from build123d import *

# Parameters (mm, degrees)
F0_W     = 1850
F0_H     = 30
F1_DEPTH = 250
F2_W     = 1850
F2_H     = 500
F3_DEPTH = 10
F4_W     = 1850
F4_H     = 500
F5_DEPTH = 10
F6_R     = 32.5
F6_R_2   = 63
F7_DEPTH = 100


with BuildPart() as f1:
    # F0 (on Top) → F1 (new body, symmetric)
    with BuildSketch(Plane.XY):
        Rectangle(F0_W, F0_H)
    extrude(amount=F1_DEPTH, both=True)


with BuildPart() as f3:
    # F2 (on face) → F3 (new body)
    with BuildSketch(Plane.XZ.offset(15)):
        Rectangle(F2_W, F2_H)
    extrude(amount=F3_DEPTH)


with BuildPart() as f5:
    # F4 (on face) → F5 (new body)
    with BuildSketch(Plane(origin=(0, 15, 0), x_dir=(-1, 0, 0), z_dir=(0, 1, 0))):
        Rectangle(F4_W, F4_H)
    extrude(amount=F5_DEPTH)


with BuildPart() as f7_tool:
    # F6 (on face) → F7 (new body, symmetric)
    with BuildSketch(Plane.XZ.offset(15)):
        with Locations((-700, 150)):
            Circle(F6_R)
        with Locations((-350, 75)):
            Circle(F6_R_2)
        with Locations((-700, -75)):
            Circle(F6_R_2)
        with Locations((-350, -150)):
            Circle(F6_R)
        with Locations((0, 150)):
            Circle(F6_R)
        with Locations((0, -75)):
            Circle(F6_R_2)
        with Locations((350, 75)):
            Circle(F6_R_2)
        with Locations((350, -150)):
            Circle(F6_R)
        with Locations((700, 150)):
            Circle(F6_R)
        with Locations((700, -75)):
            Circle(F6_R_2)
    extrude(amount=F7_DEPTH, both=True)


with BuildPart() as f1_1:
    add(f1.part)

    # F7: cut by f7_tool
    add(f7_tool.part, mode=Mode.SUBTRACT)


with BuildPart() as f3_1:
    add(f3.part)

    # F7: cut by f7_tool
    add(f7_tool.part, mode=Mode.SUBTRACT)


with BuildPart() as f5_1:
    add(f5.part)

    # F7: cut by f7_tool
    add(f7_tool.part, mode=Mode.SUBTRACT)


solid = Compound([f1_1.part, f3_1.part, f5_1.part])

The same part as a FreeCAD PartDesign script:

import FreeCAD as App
import Part
import Sketcher

V = App.Vector
Q = App.Units.Quantity


def add_polygon(sketch, points):
    """Adds a closed chain of lines whose ends are joined by coincident constraints."""
    first, n = sketch.GeometryCount, len(points)
    for a, b in zip(points, points[1:] + points[:1]):
        sketch.addGeometry(Part.LineSegment(App.Vector(*a, 0), App.Vector(*b, 0)), False)
    for i in range(n):
        sketch.addConstraint(Sketcher.Constraint("Coincident", first + i, 2, first + (i + 1) % n, 1))

doc = App.newDocument("Part")
params = doc.addObject("Spreadsheet::Sheet", "Params")
for row, (alias, value) in enumerate([
    ("sketch1_width", "1850 mm"),
    ("sketch1_height", "30 mm"),
    ("pad1_length", "500 mm"),
    ("sketch2_width", "1850 mm"),
    ("sketch2_height", "500 mm"),
    ("pad2_length", "10 mm"),
    ("sketch3_width", "1850 mm"),
    ("sketch3_height", "500 mm"),
    ("pad3_length", "10 mm"),
    ("sketch4_diameter", "65 mm"),
    ("sketch4_diameter2", "126 mm"),
    ("pad4_length", "200 mm"),
], start=1):
    params.set(f"A{row}", alias)
    params.set(f"B{row}", "=" + value)
    params.setAlias(f"B{row}", alias)

body = doc.addObject("PartDesign::Body", "Body")

sketch1 = body.newObject("Sketcher::SketchObject", "Sketch")
sketch1.AttachmentSupport = (doc.getObject("XY_Plane"), [""])
sketch1.MapMode = "FlatFace"
add_polygon(sketch1, [(-925, 15), (-925, -15), (925, -15), (925, 15)])
sketch1.addConstraint(Sketcher.Constraint("Vertical", 0))
sketch1.addConstraint(Sketcher.Constraint("Horizontal", 1))
sketch1.addConstraint(Sketcher.Constraint("Vertical", 2))
sketch1.addConstraint(Sketcher.Constraint("Horizontal", 3))
sketch1.addConstraint(Sketcher.Constraint("Symmetric", 0, 2, 2, 2, -1, 1))
sketch1.addConstraint(Sketcher.Constraint("DistanceX", 1, 1, 1, 2, Q("1850 mm")))
sketch1.addConstraint(Sketcher.Constraint("DistanceY", 0, 2, 0, 1, Q("30 mm")))
sketch1.setExpression("Constraints[9]", "Params.sketch1_width")
sketch1.setExpression("Constraints[10]", "Params.sketch1_height")
pad1 = body.newObject("PartDesign::Pad", "Pad")
pad1.Profile = sketch1
pad1.setExpression("Length", "Params.pad1_length")
pad1.Midplane = True
body2 = doc.addObject("PartDesign::Body", "Body001")

sketch2 = body2.newObject("Sketcher::SketchObject", "Sketch001")
sketch2.AttachmentSupport = (doc.getObject("XZ_Plane001"), [""])
sketch2.MapMode = "FlatFace"
sketch2.AttachmentOffset = App.Placement(V(0, 0, 15), App.Rotation())
add_polygon(sketch2, [(-925, 250), (-925, -250), (925, -250), (925, 250)])
sketch2.addConstraint(Sketcher.Constraint("Vertical", 0))
sketch2.addConstraint(Sketcher.Constraint("Horizontal", 1))
sketch2.addConstraint(Sketcher.Constraint("Vertical", 2))
sketch2.addConstraint(Sketcher.Constraint("Horizontal", 3))
sketch2.addConstraint(Sketcher.Constraint("Symmetric", 0, 2, 2, 2, -1, 1))
sketch2.addConstraint(Sketcher.Constraint("DistanceX", 1, 1, 1, 2, Q("1850 mm")))
sketch2.addConstraint(Sketcher.Constraint("DistanceY", 0, 2, 0, 1, Q("500 mm")))
sketch2.setExpression("Constraints[9]", "Params.sketch2_width")
sketch2.setExpression("Constraints[10]", "Params.sketch2_height")
pad2 = body2.newObject("PartDesign::Pad", "Pad001")
pad2.Profile = sketch2
pad2.setExpression("Length", "Params.pad2_length")
body3 = doc.addObject("PartDesign::Body", "Body002")

sketch3 = body3.newObject("Sketcher::SketchObject", "Sketch002")
sketch3.AttachmentSupport = (doc.getObject("XZ_Plane002"), [""])
sketch3.MapMode = "FlatFace"
sketch3.AttachmentOffset = App.Placement(V(0, 0, -15), App.Rotation())
add_polygon(sketch3, [(925, 250), (925, -250), (-925, -250), (-925, 250)])
sketch3.addConstraint(Sketcher.Constraint("Vertical", 0))
sketch3.addConstraint(Sketcher.Constraint("Horizontal", 1))
sketch3.addConstraint(Sketcher.Constraint("Vertical", 2))
sketch3.addConstraint(Sketcher.Constraint("Horizontal", 3))
sketch3.addConstraint(Sketcher.Constraint("Symmetric", 0, 2, 2, 2, -1, 1))
sketch3.addConstraint(Sketcher.Constraint("DistanceX", 1, 2, 1, 1, Q("1850 mm")))
sketch3.addConstraint(Sketcher.Constraint("DistanceY", 0, 2, 0, 1, Q("500 mm")))
sketch3.setExpression("Constraints[9]", "Params.sketch3_width")
sketch3.setExpression("Constraints[10]", "Params.sketch3_height")
pad3 = body3.newObject("PartDesign::Pad", "Pad002")
pad3.Profile = sketch3
pad3.setExpression("Length", "Params.pad3_length")
pad3.Reversed = True
body4 = doc.addObject("PartDesign::Body", "Body003")
body4.AllowCompound = True

sketch4 = body4.newObject("Sketcher::SketchObject", "Sketch003")
sketch4.AttachmentSupport = (doc.getObject("XZ_Plane003"), [""])
sketch4.MapMode = "FlatFace"
sketch4.AttachmentOffset = App.Placement(V(0, 0, 15), App.Rotation())
sketch4.addGeometry(Part.Circle(V(-700, 150, 0), V(0, 0, 1), 32), False)
sketch4.addGeometry(Part.Circle(V(-350, 75, 0), V(0, 0, 1), 63), False)
sketch4.addGeometry(Part.Circle(V(-700, -75, 0), V(0, 0, 1), 63), False)
sketch4.addGeometry(Part.Circle(V(-350, -150, 0), V(0, 0, 1), 32), False)
sketch4.addGeometry(Part.Circle(V(0, 150, 0), V(0, 0, 1), 32), False)
sketch4.addGeometry(Part.Circle(V(0, -75, 0), V(0, 0, 1), 63), False)
sketch4.addGeometry(Part.Circle(V(350, 75, 0), V(0, 0, 1), 63), False)
sketch4.addGeometry(Part.Circle(V(350, -150, 0), V(0, 0, 1), 32), False)
sketch4.addGeometry(Part.Circle(V(700, 150, 0), V(0, 0, 1), 32), False)
sketch4.addGeometry(Part.Circle(V(700, -75, 0), V(0, 0, 1), 63), False)
sketch4.addConstraint(Sketcher.Constraint("Equal", 1, 2))
sketch4.addConstraint(Sketcher.Constraint("Equal", 0, 3))
sketch4.addConstraint(Sketcher.Constraint("Equal", 3, 4))
sketch4.addConstraint(Sketcher.Constraint("Equal", 2, 5))
sketch4.addConstraint(Sketcher.Constraint("Equal", 5, 6))
sketch4.addConstraint(Sketcher.Constraint("Equal", 4, 7))
sketch4.addConstraint(Sketcher.Constraint("Equal", 7, 8))
sketch4.addConstraint(Sketcher.Constraint("Equal", 6, 9))
sketch4.addConstraint(Sketcher.Constraint("Symmetric", 1, 3, 6, 3, -2))
sketch4.addConstraint(Sketcher.Constraint("Symmetric", 3, 3, 7, 3, -2))
sketch4.addConstraint(Sketcher.Constraint("Symmetric", 0, 3, 8, 3, -2))
sketch4.addConstraint(Sketcher.Constraint("Symmetric", 2, 3, 9, 3, -2))
sketch4.addConstraint(Sketcher.Constraint("PointOnObject", 4, 3, -2))
sketch4.addConstraint(Sketcher.Constraint("PointOnObject", 5, 3, -2))
sketch4.addConstraint(Sketcher.Constraint("Horizontal", 0, 3, 4, 3))
sketch4.addConstraint(Sketcher.Constraint("Horizontal", 2, 3, 5, 3))
sketch4.addConstraint(Sketcher.Constraint("Vertical", 0, 3, 2, 3))
sketch4.addConstraint(Sketcher.Constraint("Vertical", 1, 3, 3, 3))
sketch4.addConstraint(Sketcher.Constraint("Diameter", 0, Q("65 mm")))
sketch4.addConstraint(Sketcher.Constraint("Diameter", 1, Q("126 mm")))
sketch4.addConstraint(Sketcher.Constraint("DistanceX", 0, 3, -1, 1, Q("700 mm")))
sketch4.addConstraint(Sketcher.Constraint("DistanceY", -1, 1, 0, 3, Q("150 mm")))
sketch4.addConstraint(Sketcher.Constraint("DistanceX", 1, 3, -1, 1, Q("350 mm")))
sketch4.addConstraint(Sketcher.Constraint("DistanceY", -1, 1, 1, 3, Q("75 mm")))
sketch4.addConstraint(Sketcher.Constraint("DistanceY", 2, 3, -1, 1, Q("75 mm")))
sketch4.addConstraint(Sketcher.Constraint("DistanceY", 3, 3, -1, 1, Q("150 mm")))
sketch4.setExpression("Constraints[18]", "Params.sketch4_diameter")
sketch4.setExpression("Constraints[19]", "Params.sketch4_diameter2")
pad4 = body4.newObject("PartDesign::Pad", "Pad003")
pad4.Profile = sketch4
pad4.setExpression("Length", "Params.pad4_length")
pad4.Midplane = True
doc.recompute()

body5 = doc.addObject("PartDesign::Body", "Body004")
body5.BaseFeature = body4
boolean = body.newObject("PartDesign::Boolean", "Boolean")
boolean.Type = "Cut"
boolean.addObjects([body5])
doc.recompute()

body6 = doc.addObject("PartDesign::Body", "Body005")
body6.BaseFeature = body4
boolean2 = body2.newObject("PartDesign::Boolean", "Boolean001")
boolean2.Type = "Cut"
boolean2.addObjects([body6])
doc.recompute()

boolean3 = body3.newObject("PartDesign::Boolean", "Boolean002")
boolean3.Type = "Cut"
boolean3.addObjects([body4])

doc.recompute()
